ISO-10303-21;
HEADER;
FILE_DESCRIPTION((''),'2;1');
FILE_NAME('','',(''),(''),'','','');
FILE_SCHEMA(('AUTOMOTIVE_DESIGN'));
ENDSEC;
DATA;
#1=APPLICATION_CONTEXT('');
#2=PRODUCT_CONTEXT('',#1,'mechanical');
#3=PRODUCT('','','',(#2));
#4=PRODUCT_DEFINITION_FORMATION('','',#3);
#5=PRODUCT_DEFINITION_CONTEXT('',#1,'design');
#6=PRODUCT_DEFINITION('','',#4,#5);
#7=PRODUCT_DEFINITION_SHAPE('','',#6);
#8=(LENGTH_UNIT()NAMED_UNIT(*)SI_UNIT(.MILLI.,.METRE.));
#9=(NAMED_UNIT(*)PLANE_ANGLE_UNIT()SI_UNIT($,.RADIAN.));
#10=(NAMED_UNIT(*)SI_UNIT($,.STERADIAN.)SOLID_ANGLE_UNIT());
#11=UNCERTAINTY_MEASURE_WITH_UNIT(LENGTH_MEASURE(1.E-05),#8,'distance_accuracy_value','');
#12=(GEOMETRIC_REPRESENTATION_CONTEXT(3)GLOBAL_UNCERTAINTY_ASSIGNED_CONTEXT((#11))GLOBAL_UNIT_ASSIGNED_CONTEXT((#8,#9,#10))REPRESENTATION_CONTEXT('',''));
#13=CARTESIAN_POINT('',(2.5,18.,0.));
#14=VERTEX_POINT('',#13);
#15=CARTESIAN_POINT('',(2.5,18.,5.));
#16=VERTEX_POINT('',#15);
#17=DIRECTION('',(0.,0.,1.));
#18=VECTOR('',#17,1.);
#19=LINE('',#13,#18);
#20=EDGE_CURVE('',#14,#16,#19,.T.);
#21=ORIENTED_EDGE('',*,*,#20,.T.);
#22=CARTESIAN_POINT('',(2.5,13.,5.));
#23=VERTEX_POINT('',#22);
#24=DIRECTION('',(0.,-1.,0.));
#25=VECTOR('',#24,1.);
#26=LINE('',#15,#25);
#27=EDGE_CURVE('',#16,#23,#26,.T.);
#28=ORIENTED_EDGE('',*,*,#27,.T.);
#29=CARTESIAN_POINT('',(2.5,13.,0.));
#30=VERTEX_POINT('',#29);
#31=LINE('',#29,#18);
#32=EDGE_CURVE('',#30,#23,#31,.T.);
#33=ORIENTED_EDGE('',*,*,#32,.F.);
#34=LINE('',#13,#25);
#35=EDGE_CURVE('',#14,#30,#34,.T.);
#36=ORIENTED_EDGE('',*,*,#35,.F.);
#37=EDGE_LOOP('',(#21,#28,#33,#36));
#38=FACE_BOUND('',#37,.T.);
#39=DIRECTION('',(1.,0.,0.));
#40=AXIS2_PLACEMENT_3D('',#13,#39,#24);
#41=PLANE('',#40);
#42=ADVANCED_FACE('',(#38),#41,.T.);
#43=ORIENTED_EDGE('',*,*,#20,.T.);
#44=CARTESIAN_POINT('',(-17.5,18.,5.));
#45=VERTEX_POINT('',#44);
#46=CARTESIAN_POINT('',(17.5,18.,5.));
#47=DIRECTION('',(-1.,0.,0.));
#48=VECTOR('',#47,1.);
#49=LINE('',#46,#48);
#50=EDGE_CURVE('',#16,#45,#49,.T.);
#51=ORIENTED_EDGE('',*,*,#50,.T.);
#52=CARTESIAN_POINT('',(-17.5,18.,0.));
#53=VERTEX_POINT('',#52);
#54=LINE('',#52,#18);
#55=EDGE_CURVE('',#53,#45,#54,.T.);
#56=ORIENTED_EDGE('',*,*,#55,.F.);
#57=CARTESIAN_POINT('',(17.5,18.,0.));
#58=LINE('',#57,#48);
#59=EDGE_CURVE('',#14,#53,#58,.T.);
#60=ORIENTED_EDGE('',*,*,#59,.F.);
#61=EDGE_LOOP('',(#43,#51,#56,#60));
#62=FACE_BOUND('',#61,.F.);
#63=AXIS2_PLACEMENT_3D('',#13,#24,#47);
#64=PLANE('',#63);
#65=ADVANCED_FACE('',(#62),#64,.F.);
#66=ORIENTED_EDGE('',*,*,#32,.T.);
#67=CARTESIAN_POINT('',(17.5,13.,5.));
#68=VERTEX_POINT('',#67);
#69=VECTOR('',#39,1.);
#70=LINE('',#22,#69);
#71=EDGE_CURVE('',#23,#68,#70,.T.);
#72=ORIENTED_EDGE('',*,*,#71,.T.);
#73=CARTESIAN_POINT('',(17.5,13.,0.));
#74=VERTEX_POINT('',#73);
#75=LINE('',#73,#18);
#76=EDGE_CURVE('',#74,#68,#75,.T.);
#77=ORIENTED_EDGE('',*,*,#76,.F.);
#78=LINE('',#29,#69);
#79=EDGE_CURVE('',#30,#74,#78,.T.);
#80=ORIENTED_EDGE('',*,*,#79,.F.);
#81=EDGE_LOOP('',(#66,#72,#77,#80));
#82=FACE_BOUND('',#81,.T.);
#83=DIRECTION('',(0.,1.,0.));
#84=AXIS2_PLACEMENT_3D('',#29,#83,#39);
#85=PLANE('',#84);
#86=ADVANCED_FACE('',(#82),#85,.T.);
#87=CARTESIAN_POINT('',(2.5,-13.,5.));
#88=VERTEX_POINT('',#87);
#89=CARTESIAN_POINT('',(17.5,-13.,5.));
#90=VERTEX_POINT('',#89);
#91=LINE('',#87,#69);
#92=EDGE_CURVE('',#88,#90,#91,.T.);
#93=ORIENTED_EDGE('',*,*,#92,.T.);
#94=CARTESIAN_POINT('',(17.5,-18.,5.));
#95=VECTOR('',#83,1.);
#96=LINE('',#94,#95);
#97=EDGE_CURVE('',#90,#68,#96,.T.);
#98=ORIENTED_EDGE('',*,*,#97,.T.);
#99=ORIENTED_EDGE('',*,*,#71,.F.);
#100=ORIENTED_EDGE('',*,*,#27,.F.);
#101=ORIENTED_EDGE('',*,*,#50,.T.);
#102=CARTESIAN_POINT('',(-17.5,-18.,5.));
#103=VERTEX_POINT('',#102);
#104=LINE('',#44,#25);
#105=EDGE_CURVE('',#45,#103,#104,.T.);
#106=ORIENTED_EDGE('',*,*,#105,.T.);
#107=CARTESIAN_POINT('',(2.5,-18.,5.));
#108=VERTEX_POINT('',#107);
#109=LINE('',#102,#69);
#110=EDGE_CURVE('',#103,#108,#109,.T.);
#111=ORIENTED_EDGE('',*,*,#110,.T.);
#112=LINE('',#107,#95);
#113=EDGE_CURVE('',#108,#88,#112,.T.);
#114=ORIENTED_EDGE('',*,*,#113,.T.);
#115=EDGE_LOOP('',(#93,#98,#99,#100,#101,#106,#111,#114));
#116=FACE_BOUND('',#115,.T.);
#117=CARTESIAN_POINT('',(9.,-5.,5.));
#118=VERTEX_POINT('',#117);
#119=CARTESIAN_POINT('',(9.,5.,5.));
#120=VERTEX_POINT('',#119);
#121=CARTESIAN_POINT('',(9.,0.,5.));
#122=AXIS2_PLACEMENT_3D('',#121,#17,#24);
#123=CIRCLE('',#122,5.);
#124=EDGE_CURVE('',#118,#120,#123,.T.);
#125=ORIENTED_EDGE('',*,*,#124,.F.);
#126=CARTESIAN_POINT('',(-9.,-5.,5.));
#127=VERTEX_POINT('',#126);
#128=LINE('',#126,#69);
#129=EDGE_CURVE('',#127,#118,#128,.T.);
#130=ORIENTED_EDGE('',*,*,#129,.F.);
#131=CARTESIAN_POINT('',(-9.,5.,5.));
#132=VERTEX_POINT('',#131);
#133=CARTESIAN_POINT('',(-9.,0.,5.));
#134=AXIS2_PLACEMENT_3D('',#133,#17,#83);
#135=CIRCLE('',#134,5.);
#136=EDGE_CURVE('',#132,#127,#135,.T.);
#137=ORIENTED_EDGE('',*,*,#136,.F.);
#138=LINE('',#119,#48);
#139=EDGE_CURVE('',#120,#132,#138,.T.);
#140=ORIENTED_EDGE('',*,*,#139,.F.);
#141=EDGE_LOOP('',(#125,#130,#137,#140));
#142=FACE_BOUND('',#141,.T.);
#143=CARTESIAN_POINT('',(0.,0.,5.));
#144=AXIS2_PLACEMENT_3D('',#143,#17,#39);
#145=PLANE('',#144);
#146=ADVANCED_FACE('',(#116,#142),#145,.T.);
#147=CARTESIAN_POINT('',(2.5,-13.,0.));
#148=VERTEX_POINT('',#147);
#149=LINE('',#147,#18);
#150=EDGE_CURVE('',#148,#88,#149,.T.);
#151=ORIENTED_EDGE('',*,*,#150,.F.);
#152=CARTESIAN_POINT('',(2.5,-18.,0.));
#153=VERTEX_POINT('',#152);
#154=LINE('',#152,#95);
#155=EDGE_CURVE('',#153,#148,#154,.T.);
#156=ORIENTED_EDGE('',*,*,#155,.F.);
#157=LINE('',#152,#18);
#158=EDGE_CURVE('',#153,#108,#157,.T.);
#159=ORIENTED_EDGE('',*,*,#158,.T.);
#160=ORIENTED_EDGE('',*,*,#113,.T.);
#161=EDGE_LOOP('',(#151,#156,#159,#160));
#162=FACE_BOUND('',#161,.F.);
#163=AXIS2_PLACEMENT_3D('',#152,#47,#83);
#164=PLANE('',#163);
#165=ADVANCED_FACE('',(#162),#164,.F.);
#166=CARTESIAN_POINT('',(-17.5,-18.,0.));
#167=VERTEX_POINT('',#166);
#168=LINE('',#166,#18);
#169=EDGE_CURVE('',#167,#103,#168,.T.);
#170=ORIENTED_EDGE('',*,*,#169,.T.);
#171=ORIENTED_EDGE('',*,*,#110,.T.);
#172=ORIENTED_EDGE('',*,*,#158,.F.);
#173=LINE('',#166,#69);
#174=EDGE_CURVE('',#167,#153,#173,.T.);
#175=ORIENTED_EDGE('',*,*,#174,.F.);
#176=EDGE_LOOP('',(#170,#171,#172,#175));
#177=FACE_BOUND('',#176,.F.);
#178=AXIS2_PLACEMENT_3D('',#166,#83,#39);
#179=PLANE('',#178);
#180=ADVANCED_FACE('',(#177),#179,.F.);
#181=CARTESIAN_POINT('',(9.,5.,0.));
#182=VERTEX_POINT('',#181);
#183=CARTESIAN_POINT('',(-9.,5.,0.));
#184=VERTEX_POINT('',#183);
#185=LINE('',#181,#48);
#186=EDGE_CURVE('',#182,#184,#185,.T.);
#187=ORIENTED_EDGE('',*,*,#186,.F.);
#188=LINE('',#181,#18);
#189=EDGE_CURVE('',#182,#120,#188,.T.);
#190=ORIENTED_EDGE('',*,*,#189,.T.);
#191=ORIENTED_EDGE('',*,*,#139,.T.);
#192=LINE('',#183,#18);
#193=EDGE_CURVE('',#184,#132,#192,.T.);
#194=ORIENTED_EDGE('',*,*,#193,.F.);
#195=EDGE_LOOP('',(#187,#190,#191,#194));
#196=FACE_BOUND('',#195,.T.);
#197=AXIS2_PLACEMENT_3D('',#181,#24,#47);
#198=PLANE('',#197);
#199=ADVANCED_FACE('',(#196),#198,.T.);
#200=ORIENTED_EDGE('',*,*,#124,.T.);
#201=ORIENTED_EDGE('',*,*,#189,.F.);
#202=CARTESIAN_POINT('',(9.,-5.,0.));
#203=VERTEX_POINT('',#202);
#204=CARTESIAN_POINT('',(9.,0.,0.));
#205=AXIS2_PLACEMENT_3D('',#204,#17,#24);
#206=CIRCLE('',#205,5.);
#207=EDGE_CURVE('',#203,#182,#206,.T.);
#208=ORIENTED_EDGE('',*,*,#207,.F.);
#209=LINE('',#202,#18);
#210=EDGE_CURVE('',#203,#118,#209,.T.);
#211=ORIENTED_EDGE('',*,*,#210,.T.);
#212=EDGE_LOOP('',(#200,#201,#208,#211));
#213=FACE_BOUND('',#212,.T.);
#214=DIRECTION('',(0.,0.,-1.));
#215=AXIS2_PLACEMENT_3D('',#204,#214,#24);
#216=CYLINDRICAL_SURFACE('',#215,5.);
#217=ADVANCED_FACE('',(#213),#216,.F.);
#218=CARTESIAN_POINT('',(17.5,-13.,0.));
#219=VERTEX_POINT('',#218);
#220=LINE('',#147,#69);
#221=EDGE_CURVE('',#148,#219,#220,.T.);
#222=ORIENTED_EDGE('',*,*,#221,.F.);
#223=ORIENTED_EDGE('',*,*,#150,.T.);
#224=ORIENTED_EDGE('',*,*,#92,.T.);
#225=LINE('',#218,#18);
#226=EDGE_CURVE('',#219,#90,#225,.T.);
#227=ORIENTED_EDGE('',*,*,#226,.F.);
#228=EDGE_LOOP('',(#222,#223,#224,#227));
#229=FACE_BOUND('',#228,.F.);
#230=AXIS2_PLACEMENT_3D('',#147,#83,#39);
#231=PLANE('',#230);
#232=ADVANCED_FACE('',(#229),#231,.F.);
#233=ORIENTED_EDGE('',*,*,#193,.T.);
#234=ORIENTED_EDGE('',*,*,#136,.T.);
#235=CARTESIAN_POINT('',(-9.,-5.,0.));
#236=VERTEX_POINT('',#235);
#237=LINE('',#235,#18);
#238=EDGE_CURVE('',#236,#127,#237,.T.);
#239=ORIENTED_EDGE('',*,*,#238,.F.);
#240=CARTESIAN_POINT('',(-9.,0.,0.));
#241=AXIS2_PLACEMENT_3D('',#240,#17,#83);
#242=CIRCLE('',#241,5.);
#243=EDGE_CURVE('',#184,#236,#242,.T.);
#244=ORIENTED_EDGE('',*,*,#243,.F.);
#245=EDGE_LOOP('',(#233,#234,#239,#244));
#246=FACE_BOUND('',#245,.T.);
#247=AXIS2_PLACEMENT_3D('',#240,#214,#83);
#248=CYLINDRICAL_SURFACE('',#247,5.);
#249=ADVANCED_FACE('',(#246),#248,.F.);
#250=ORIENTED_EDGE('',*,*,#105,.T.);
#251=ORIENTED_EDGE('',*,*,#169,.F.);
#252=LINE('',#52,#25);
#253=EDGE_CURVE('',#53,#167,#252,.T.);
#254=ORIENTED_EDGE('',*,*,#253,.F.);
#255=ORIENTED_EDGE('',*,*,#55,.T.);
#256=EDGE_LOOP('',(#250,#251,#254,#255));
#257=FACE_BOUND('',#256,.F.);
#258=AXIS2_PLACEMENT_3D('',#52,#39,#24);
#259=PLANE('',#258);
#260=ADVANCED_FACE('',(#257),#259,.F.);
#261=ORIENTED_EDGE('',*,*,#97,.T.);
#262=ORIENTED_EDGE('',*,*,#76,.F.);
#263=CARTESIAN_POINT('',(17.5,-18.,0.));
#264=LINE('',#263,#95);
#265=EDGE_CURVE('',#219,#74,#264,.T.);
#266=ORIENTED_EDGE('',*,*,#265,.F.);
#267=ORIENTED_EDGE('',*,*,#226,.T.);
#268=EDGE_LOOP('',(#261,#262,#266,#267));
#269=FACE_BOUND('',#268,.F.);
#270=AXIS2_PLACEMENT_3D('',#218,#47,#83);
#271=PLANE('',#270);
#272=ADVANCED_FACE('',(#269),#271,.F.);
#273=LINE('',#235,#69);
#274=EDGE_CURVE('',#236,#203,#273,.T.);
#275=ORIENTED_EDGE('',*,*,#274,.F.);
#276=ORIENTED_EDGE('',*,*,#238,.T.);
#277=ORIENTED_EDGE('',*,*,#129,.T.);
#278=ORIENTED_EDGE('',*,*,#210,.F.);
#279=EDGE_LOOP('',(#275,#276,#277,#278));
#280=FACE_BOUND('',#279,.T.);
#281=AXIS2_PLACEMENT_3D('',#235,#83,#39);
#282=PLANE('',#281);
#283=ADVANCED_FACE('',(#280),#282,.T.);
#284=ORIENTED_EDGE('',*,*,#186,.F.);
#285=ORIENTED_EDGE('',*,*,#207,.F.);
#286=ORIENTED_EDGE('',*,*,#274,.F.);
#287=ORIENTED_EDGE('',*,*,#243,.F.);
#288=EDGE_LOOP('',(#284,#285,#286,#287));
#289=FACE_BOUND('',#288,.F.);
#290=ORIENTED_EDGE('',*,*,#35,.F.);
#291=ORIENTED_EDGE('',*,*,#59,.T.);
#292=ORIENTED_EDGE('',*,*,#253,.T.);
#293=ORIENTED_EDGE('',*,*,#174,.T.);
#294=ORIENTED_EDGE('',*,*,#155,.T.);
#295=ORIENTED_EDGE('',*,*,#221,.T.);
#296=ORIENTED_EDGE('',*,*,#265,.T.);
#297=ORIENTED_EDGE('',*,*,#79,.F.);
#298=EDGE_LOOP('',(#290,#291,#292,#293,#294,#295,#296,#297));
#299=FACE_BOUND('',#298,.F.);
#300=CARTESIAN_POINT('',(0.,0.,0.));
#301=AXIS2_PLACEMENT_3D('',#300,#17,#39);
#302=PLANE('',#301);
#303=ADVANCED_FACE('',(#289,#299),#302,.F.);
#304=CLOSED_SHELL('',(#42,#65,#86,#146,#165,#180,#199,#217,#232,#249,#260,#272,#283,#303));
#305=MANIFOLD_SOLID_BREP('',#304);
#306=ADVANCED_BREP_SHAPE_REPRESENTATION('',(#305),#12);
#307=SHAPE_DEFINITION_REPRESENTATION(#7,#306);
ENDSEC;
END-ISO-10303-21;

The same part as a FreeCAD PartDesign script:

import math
import FreeCAD as App
import Part
import Sketcher

V = App.Vector

doc = App.newDocument("Part")
body = doc.addObject("PartDesign::Body", "Body")

# Sketch on XY plane
sketch1 = body.newObject("Sketcher::SketchObject", "Sketch")
sketch1.AttachmentSupport = (doc.getObject("XY_Plane"), [""])
sketch1.MapMode = "FlatFace"
sketch1.addGeometry([
    Part.LineSegment(V(-18, 18, 0), V(-18, -18, 0)),  # 0
    Part.LineSegment(V(-18, -18, 0), V(2, -18, 0)),  # 1
    Part.LineSegment(V(2, -18, 0), V(2, -13, 0)),  # 2
    Part.LineSegment(V(2, -13, 0), V(18, -13, 0)),  # 3
    Part.LineSegment(V(18, -13, 0), V(18, 13, 0)),  # 4
    Part.LineSegment(V(18, 13, 0), V(2, 13, 0)),  # 5
    Part.LineSegment(V(2, 13, 0), V(2, 18, 0)),  # 6
    Part.LineSegment(V(2, 18, 0), V(-18, 18, 0)),  # 7
    Part.LineSegment(V(9, -5, 0), V(-9, -5, 0)),  # 8
    Part.ArcOfCircle(Part.Circle(V(-9, 0, 0), V(0, 0, 1), 5), math.radians(90), math.radians(270)),  # 9
    Part.LineSegment(V(-9, 5, 0), V(9, 5, 0)),  # 10
    Part.ArcOfCircle(Part.Circle(V(9, 0, 0), V(0, 0, 1), 5), math.radians(-90), math.radians(90)),  # 11
], False)
sketch1.addConstraint([
    Sketcher.Constraint("Coincident", 0, 2, 1, 1),
    Sketcher.Constraint("Coincident", 1, 2, 2, 1),
    Sketcher.Constraint("Coincident", 2, 2, 3, 1),
    Sketcher.Constraint("Coincident", 3, 2, 4, 1),
    Sketcher.Constraint("Coincident", 4, 2, 5, 1),
    Sketcher.Constraint("Coincident", 5, 2, 6, 1),
    Sketcher.Constraint("Coincident", 6, 2, 7, 1),
    Sketcher.Constraint("Coincident", 7, 2, 0, 1),
    Sketcher.Constraint("Tangent", 8, 2, 9, 2),
    Sketcher.Constraint("Tangent", 9, 1, 10, 1),
    Sketcher.Constraint("Tangent", 10, 2, 11, 2),
    Sketcher.Constraint("Tangent", 11, 1, 8, 1),
    Sketcher.Constraint("Vertical", 0),
    Sketcher.Constraint("Horizontal", 1),
    Sketcher.Constraint("Vertical", 2),
    Sketcher.Constraint("Horizontal", 3),
    Sketcher.Constraint("Vertical", 4),
    Sketcher.Constraint("Horizontal", 5),
    Sketcher.Constraint("Vertical", 6),
    Sketcher.Constraint("Horizontal", 7),
    Sketcher.Constraint("Horizontal", 8),
    Sketcher.Constraint("Horizontal", 10),
    Sketcher.Constraint("Symmetric", 9, 3, 11, 3, -1, 1),
    Sketcher.Constraint("Symmetric", 2, 2, 5, 2, -1),
    Sketcher.Constraint("Equal", 2, 6),
    Sketcher.Constraint("Radius", 9, 5.0),
    Sketcher.Constraint("DistanceX", 1, 1, 1, 2, 20.0),
    Sketcher.Constraint("DistanceX", 8, 2, 8, 1, 18.0),
    Sketcher.Constraint("DistanceY", 0, 2, 0, 1, 36.0),
    Sketcher.Constraint("DistanceY", 2, 1, 2, 2, 5.0),
    Sketcher.Constraint("DistanceX", 0, 2, 3, 2, 35.0),
    Sketcher.Constraint("DistanceX", 0, 2, -1, 1, 17.5),
])
pad1 = body.newObject("PartDesign::Pad", "Pad")
pad1.Profile = sketch1
pad1.Length = 5

doc.recompute()
